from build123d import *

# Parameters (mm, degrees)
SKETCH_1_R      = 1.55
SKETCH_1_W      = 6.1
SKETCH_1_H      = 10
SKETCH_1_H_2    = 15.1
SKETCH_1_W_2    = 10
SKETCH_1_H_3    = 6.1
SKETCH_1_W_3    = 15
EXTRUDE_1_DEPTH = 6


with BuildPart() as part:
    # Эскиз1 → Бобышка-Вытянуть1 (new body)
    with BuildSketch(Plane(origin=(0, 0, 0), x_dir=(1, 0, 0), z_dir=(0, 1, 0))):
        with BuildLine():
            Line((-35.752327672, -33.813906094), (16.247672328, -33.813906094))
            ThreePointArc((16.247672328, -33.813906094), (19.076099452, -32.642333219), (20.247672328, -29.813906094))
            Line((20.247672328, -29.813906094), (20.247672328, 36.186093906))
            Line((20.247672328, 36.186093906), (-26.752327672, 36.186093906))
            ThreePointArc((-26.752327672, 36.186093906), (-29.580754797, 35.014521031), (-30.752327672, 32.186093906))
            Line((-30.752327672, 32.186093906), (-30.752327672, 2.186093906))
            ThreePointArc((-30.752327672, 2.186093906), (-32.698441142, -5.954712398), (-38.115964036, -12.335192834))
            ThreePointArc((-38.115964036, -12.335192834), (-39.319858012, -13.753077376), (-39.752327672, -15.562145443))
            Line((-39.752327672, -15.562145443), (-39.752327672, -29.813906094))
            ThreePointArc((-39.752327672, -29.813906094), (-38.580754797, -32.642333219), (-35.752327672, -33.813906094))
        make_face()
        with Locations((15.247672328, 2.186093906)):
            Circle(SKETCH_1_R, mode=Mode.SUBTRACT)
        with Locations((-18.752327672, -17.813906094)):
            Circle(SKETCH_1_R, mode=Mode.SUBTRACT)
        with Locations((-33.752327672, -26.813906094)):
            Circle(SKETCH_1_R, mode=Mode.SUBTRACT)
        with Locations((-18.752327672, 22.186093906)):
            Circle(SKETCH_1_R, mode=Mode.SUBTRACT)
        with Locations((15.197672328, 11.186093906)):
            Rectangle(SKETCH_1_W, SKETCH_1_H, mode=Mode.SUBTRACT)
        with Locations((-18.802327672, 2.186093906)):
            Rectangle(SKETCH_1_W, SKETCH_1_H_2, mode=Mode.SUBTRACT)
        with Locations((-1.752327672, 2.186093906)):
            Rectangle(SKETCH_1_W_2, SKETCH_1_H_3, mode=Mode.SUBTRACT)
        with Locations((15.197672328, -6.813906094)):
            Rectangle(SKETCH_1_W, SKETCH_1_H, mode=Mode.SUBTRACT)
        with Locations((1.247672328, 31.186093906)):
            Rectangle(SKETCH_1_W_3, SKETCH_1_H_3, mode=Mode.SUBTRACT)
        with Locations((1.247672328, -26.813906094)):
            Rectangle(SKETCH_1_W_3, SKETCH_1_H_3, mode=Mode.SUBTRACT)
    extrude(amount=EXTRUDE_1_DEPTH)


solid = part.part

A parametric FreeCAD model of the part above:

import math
import FreeCAD as App
import Part
import Sketcher


def add_polygon(sketch, points):
    """Adds a closed chain of lines whose ends are joined by coincident constraints."""
    first, n = sketch.GeometryCount, len(points)
    for a, b in zip(points, points[1:] + points[:1]):
        sketch.addGeometry(Part.LineSegment(App.Vector(*a, 0), App.Vector(*b, 0)), False)
    for i in range(n):
        sketch.addConstraint(Sketcher.Constraint("Coincident", first + i, 2, first + (i + 1) % n, 1))

doc = App.newDocument("Part")
body = doc.addObject("PartDesign::Body", "Body")

# Sketch on XZ plane
sketch1 = body.newObject("Sketcher::SketchObject", "Sketch")
sketch1.AttachmentSupport = (doc.getObject("XZ_Plane"), [""])
sketch1.MapMode = "FlatFace"
sketch1.addGeometry(Part.LineSegment(App.Vector(-35.8, 33.8, 0), App.Vector(16.2, 33.8, 0)), False)  # 0
sketch1.addGeometry(Part.ArcOfCircle(Part.Circle(App.Vector(16.2, 29.8, 0), App.Vector(0, 0, 1), 4), math.radians(0), math.radians(90)), False)  # 1
sketch1.addGeometry(Part.LineSegment(App.Vector(20.2, 29.8, 0), App.Vector(20.2, -36.2, 0)), False)  # 2
sketch1.addGeometry(Part.LineSegment(App.Vector(20.2, -36.2, 0), App.Vector(-26.8, -36.2, 0)), False)  # 3
sketch1.addGeometry(Part.ArcOfCircle(Part.Circle(App.Vector(-26.8, -32.2, 0), App.Vector(0, 0, 1), 4), math.radians(180), math.radians(270)), False)  # 4
sketch1.addGeometry(Part.LineSegment(App.Vector(-30.8, -32.2, 0), App.Vector(-30.8, -2.2, 0)), False)  # 5
sketch1.addGeometry(Part.ArcOfCircle(Part.Circle(App.Vector(-48.8, -2.2, 0), App.Vector(0, 0, 1), 18), math.radians(0), math.radians(54)), False)  # 6
sketch1.addGeometry(Part.ArcOfCircle(Part.Circle(App.Vector(-35.8, 15.6, 0), App.Vector(0, 0, 1), 4), math.radians(-180), math.radians(-126)), False)  # 7
sketch1.addGeometry(Part.LineSegment(App.Vector(-39.8, 15.6, 0), App.Vector(-39.8, 29.8, 0)), False)  # 8
sketch1.addGeometry(Part.ArcOfCircle(Part.Circle(App.Vector(-35.8, 29.8, 0), App.Vector(0, 0, 1), 4), math.radians(90), math.radians(180)), False)  # 9
sketch1.addGeometry(Part.Circle(App.Vector(-33.8, 26.8, 0), App.Vector(0, 0, 1), 1.6), False)  # 10
sketch1.addGeometry(Part.Circle(App.Vector(-18.8, 17.8, 0), App.Vector(0, 0, 1), 1.6), False)  # 11
add_polygon(sketch1, [(8.7, 29.9), (-6.3, 29.9), (-6.3, 23.8), (8.7, 23.8)])  # lines 12-15
add_polygon(sketch1, [(18.2, 11.8), (12.1, 11.8), (12.1, 1.8), (18.2, 1.8)])  # lines 16-19
add_polygon(sketch1, [(-15.8, 5.4), (-21.9, 5.4), (-21.9, -9.7), (-15.8, -9.7)])  # lines 20-23
sketch1.addGeometry(Part.Circle(App.Vector(-18.8, -22.2, 0), App.Vector(0, 0, 1), 1.6), False)  # 24
add_polygon(sketch1, [(3.2, 0.9), (-6.8, 0.9), (-6.8, -5.2), (3.2, -5.2)])  # lines 25-28
sketch1.addGeometry(Part.Circle(App.Vector(15.2, -2.2, 0), App.Vector(0, 0, 1), 1.6), False)  # 29
add_polygon(sketch1, [(18.2, -6.2), (12.1, -6.2), (12.1, -16.2), (18.2, -16.2)])  # lines 30-33
add_polygon(sketch1, [(8.7, -28.1), (-6.3, -28.1), (-6.3, -34.2), (8.7, -34.2)])  # lines 34-37
sketch1.addConstraint([
    Sketcher.Constraint("Tangent", 0, 2, 1, 2),
    Sketcher.Constraint("Tangent", 1, 1, 2, 1),
    Sketcher.Constraint("Coincident", 2, 2, 3, 1),
    Sketcher.Constraint("Tangent", 3, 2, 4, 2),
    Sketcher.Constraint("Tangent", 4, 1, 5, 1),
    Sketcher.Constraint("Tangent", 5, 2, 6, 1),
    Sketcher.Constraint("Tangent", 6, 2, 7, 2),
    Sketcher.Constraint("Tangent", 7, 1, 8, 1),
    Sketcher.Constraint("Tangent", 8, 2, 9, 2),
    Sketcher.Constraint("Tangent", 9, 1, 0, 1),
    Sketcher.Constraint("Horizontal", 0),
    Sketcher.Constraint("Vertical", 2),
    Sketcher.Constraint("Horizontal", 3),
    Sketcher.Constraint("Vertical", 5),
    Sketcher.Constraint("Vertical", 8),
    Sketcher.Constraint("Horizontal", 12),
    Sketcher.Constraint("Vertical", 13),
    Sketcher.Constraint("Horizontal", 14),
    Sketcher.Constraint("Vertical", 15),
    Sketcher.Constraint("Horizontal", 16),
    Sketcher.Constraint("Vertical", 17),
    Sketcher.Constraint("Horizontal", 18),
    Sketcher.Constraint("Vertical", 19),
    Sketcher.Constraint("Horizontal", 20),
    Sketcher.Constraint("Vertical", 21),
    Sketcher.Constraint("Horizontal", 22),
    Sketcher.Constraint("Vertical", 23),
    Sketcher.Constraint("Horizontal", 25),
    Sketcher.Constraint("Vertical", 26),
    Sketcher.Constraint("Horizontal", 27),
    Sketcher.Constraint("Vertical", 28),
    Sketcher.Constraint("Horizontal", 30),
    Sketcher.Constraint("Vertical", 31),
    Sketcher.Constraint("Horizontal", 32),
    Sketcher.Constraint("Vertical", 33),
    Sketcher.Constraint("Horizontal", 34),
    Sketcher.Constraint("Vertical", 35),
    Sketcher.Constraint("Horizontal", 36),
    Sketcher.Constraint("Vertical", 37),
    Sketcher.Constraint("Equal", 1, 4),
    Sketcher.Constraint("Equal", 4, 7),
    Sketcher.Constraint("Equal", 7, 9),
    Sketcher.Constraint("Equal", 10, 11),
    Sketcher.Constraint("Equal", 11, 24),
    Sketcher.Constraint("Equal", 24, 29),
    Sketcher.Constraint("Horizontal", 6, 3, 29, 3),
    Sketcher.Constraint("Vertical", 11, 3, 24, 3),
    Sketcher.Constraint("Vertical", 17, 2, 30, 2),
    Sketcher.Constraint("Vertical", 19, 2, 32, 2),
    Sketcher.Constraint("Vertical", 13, 2, 34, 2),
    Sketcher.Constraint("Vertical", 15, 2, 36, 2),
    Sketcher.Constraint("Equal", 18, 20),
    Sketcher.Constraint("Equal", 32, 13),
    Sketcher.Constraint("Equal", 27, 17),
    Sketcher.Constraint("Equal", 15, 26),
    Sketcher.Constraint("Equal", 19, 31),
    Sketcher.Constraint("Equal", 28, 35),
    Sketcher.Constraint("Radius", 1, 4.0),
    Sketcher.Constraint("Radius", 6, 18.0),
    Sketcher.Constraint("Diameter", 10, 3.1),
    Sketcher.Constraint("DistanceX", 0, 1, 0, 2, 52.0),
    Sketcher.Constraint("DistanceX", 3, 2, 3, 1, 47.0),
    Sketcher.Constraint("DistanceX", 12, 2, 12, 1, 15.0),
    Sketcher.Constraint("DistanceX", 25, 2, 25, 1, 10.0),
    Sketcher.Constraint("DistanceY", 2, 2, 2, 1, 66.0),
    Sketcher.Constraint("DistanceY", 5, 1, 5, 2, 30.0),
    Sketcher.Constraint("DistanceX", 16, 2, 16, 1, 6.1),
    Sketcher.Constraint("DistanceY", 21, 2, 21, 1, 15.1),
    Sketcher.Constraint("DistanceX", 9, 3, 10, 3, 2.0),
    Sketcher.Constraint("DistanceY", 10, 3, 9, 3, 3.0),
    Sketcher.Constraint("DistanceX", 7, 3, 11, 3, 17.0),
    Sketcher.Constraint("DistanceY", 11, 3, 10, 3, 9.0),
    Sketcher.Constraint("DistanceY", 4, 3, 24, 3, 10.0),
    Sketcher.Constraint("DistanceX", 29, 3, 1, 3, 1.0),
    Sketcher.Constraint("DistanceY", 29, 3, 16, 2, 14.0),
    Sketcher.Constraint("DistanceX", 29, 3, 18, 2, 3.0),
    Sketcher.Constraint("DistanceX", 24, 3, 22, 2, 3.0),
    Sketcher.Constraint("DistanceX", 23, 2, 25, 2, 9.0),
    Sketcher.Constraint("DistanceY", 30, 2, 29, 3, 4.0),
    Sketcher.Constraint("DistanceX", 11, 3, 12, 2, 12.5),
    Sketcher.Constraint("DistanceY", 25, 2, 23, 2, 4.5),
    Sketcher.Constraint("DistanceY", 34, 2, 22, 2, 18.4),
    Sketcher.Constraint("DistanceY", 11, 3, 12, 2, 12.05),
    Sketcher.Constraint("DistanceY", 5, 2, 20, 2, 7.55),
    Sketcher.Constraint("DistanceX", -1, 1, 1, 3, 16.247672),
    Sketcher.Constraint("DistanceY", -1, 1, 1, 3, 29.813906),
])
pad1 = body.newObject("PartDesign::Pad", "Pad")
pad1.Profile = sketch1
pad1.Length = 6
pad1.Reversed = True

doc.recompute()
